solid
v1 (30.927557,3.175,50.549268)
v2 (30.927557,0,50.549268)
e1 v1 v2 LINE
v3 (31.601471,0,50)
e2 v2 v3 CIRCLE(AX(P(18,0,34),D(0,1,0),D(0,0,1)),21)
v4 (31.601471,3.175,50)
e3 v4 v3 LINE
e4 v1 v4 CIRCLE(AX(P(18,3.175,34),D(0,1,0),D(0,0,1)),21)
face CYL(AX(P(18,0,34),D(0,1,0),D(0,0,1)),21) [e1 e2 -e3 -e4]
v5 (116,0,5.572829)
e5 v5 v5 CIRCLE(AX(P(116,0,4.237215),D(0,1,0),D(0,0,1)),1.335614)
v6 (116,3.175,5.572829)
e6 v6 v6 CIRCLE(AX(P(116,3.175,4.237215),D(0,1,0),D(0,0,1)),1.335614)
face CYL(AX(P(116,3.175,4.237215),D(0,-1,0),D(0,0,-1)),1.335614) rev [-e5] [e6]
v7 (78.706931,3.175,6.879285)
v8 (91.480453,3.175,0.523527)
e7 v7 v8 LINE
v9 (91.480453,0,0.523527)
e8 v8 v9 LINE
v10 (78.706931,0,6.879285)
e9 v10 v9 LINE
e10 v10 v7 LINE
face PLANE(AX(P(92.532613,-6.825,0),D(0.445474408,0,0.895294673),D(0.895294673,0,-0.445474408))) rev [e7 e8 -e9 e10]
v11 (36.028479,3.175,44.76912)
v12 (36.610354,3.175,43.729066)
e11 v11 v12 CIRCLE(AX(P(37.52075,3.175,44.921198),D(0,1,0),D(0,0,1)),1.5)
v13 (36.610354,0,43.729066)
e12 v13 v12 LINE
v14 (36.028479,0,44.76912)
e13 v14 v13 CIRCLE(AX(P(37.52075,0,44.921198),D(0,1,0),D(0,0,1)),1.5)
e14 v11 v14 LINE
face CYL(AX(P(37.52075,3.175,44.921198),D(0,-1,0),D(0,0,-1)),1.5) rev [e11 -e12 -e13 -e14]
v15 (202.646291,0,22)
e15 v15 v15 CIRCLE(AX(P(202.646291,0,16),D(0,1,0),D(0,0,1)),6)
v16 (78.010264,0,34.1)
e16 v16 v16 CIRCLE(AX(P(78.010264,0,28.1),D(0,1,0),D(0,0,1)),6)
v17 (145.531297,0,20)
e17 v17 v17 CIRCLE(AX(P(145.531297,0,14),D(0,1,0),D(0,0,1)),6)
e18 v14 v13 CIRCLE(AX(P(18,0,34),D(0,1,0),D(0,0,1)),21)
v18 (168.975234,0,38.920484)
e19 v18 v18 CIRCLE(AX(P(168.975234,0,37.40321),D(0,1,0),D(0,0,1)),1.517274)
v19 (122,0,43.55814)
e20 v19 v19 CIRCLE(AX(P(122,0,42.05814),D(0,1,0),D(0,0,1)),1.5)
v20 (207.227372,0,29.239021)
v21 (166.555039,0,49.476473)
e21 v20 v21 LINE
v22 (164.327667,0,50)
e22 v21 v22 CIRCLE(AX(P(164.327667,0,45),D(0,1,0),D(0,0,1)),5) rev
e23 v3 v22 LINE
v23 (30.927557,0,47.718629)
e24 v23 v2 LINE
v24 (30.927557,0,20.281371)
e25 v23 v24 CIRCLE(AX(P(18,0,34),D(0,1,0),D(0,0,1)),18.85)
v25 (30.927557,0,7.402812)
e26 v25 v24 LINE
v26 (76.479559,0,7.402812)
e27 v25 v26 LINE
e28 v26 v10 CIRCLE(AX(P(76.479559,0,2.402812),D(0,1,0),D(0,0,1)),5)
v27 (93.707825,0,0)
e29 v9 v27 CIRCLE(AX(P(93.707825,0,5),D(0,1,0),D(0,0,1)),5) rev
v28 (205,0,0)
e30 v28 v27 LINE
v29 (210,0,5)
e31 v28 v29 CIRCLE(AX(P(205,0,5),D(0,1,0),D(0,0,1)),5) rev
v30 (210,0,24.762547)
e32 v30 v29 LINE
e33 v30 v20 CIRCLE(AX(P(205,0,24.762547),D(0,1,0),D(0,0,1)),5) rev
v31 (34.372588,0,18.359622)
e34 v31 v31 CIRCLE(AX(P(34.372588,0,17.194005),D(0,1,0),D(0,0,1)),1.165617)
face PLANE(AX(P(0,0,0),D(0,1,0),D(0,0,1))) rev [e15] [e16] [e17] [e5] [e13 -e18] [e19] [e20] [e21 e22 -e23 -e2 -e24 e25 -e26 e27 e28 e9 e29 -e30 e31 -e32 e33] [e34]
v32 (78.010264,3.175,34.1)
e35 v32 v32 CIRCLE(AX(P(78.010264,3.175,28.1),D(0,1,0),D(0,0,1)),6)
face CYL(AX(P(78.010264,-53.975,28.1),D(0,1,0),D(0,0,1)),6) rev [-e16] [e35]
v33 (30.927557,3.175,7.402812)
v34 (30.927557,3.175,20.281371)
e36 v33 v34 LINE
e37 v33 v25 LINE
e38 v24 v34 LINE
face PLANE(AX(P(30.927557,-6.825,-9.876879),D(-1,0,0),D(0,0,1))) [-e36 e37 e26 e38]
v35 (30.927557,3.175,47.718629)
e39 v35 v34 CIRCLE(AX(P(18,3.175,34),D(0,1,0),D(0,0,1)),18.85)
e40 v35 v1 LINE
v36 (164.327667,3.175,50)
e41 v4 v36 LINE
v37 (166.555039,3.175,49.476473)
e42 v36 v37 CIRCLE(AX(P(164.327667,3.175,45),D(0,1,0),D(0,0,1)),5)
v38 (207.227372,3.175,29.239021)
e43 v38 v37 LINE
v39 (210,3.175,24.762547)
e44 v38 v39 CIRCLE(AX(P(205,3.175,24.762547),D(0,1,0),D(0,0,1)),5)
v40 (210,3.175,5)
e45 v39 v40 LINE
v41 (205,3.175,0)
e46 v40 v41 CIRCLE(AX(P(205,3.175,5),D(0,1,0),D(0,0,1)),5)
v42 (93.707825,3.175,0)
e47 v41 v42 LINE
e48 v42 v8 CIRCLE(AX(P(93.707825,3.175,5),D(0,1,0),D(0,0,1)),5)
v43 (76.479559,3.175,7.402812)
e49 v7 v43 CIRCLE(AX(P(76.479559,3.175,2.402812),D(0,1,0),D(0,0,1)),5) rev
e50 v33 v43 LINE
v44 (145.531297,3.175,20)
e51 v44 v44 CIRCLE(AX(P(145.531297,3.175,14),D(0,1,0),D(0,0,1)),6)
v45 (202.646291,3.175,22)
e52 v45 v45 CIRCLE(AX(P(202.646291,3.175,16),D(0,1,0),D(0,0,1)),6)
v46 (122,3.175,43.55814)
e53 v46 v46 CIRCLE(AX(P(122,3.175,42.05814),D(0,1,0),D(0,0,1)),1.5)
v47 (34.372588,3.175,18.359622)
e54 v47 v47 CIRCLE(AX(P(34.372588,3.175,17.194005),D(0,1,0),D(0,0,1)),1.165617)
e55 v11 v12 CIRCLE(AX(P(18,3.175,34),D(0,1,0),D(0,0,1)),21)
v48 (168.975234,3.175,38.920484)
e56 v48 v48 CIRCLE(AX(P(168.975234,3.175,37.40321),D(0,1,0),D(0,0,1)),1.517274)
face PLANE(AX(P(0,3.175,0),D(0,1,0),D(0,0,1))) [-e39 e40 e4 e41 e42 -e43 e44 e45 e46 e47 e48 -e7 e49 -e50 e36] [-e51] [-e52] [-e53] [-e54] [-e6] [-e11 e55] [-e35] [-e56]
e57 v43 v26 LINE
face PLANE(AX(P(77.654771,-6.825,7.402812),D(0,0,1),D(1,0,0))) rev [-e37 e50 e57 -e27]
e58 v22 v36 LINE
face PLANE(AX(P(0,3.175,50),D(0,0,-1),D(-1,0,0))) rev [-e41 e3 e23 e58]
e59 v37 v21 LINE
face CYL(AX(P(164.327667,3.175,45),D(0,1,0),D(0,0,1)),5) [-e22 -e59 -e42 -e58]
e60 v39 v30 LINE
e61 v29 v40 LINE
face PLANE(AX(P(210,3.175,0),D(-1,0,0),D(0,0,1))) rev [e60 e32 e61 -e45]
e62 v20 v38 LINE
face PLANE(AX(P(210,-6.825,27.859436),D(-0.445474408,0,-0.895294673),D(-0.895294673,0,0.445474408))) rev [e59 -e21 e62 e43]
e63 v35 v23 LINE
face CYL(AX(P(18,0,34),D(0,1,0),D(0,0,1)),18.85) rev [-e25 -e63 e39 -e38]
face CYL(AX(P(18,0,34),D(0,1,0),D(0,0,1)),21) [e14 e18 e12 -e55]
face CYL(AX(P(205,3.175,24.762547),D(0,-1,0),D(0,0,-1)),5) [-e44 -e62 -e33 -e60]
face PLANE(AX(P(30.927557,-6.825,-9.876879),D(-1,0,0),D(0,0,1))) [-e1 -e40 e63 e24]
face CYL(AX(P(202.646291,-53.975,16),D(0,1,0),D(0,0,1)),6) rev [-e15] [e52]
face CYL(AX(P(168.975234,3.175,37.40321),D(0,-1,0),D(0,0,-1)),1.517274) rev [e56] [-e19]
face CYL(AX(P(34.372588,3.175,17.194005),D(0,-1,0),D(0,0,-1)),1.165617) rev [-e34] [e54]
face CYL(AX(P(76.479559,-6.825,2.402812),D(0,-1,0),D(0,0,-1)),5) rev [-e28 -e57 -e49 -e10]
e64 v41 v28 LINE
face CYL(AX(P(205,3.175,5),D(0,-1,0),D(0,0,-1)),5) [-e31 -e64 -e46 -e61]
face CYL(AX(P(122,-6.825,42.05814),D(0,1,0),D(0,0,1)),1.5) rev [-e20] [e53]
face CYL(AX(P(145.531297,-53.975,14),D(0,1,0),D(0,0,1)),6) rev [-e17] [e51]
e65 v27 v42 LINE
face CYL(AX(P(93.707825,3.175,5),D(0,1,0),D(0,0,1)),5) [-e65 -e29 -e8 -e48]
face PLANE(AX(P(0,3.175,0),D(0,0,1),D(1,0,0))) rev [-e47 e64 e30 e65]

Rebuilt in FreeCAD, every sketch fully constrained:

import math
import FreeCAD as App
import Part
import Sketcher
Q = App.Units.Quantity


def edges_at(feature, points):
    """Names of the edges that pass closest to the given points."""
    edges = feature.Shape.Edges
    near = lambda p: min(range(len(edges)), key=lambda i: edges[i].distToShape(Part.Vertex(*p))[0])
    return sorted({f"Edge{near(p) + 1}" for p in points})


def add_polygon(sketch, points):
    """Adds a closed chain of lines whose ends are joined by coincident constraints."""
    first, n = sketch.GeometryCount, len(points)
    for a, b in zip(points, points[1:] + points[:1]):
        sketch.addGeometry(Part.LineSegment(App.Vector(*a, 0), App.Vector(*b, 0)), False)
    for i in range(n):
        sketch.addConstraint(Sketcher.Constraint("Coincident", first + i, 2, first + (i + 1) % n, 1))

doc = App.newDocument("Part")
body = doc.addObject("PartDesign::Body", "Body")

# Sketch on XZ plane
sketch1 = body.newObject("Sketcher::SketchObject", "Sketch")
sketch1.AttachmentSupport = (doc.getObject("XZ_Plane"), [""])
sketch1.MapMode = "FlatFace"
add_polygon(sketch1, [(0, 0), (0, 50), (210, 50), (210, 0)])  # lines 0-3
sketch1.addGeometry(Part.Circle(App.Vector(37.5, 44.9, 0), App.Vector(0, 0, 1), 1.5), False)  # 4
sketch1.addGeometry(Part.Circle(App.Vector(169, 37.4, 0), App.Vector(0, 0, 1), 1.5), False)  # 5
sketch1.addGeometry(Part.Circle(App.Vector(3.5, 16.8, 0), App.Vector(0, 0, 1), 1.2), False)  # 6
sketch1.addGeometry(Part.Circle(App.Vector(34.4, 17.2, 0), App.Vector(0, 0, 1), 1.2), False)  # 7
sketch1.addGeometry(Part.Circle(App.Vector(12.3, 3.3, 0), App.Vector(0, 0, 1), 1.6), False)  # 8
sketch1.addGeometry(Part.Circle(App.Vector(116, 4.2, 0), App.Vector(0, 0, 1), 1.3), False)  # 9
sketch1.addConstraint([
    Sketcher.Constraint("Vertical", 0),
    Sketcher.Constraint("Horizontal", 1),
    Sketcher.Constraint("Vertical", 2),
    Sketcher.Constraint("Horizontal", 3),
    Sketcher.Constraint("Coincident", 3, 2, -1, 1),
    Sketcher.Constraint("Diameter", 4, Q("3 mm")),
    Sketcher.Constraint("DistanceX", 1, 1, 1, 2, Q("210 mm")),
    Sketcher.Constraint("DistanceY", 0, 1, 0, 2, Q("50 mm")),
    Sketcher.Constraint("DistanceX", -1, 1, 9, 3, Q("116 mm")),
    Sketcher.Constraint("Diameter", 6, Q("2.42333 mm")),
    Sketcher.Constraint("Diameter", 8, Q("3.248768 mm")),
    Sketcher.Constraint("Diameter", 9, Q("2.671228 mm")),
    Sketcher.Constraint("Diameter", 5, Q("3.034548 mm")),
    Sketcher.Constraint("Diameter", 7, Q("2.331234 mm")),
    Sketcher.Constraint("DistanceY", -1, 1, 4, 3, Q("44.921198 mm")),
    Sketcher.Constraint("DistanceX", -1, 1, 4, 3, Q("37.52075 mm")),
    Sketcher.Constraint("DistanceY", -1, 1, 5, 3, Q("37.40321 mm")),
    Sketcher.Constraint("DistanceY", -1, 1, 6, 3, Q("16.787661 mm")),
    Sketcher.Constraint("DistanceX", -1, 1, 8, 3, Q("12.25764 mm")),
    Sketcher.Constraint("DistanceX", 6, 3, 7, 3, Q("30.883061 mm")),
    Sketcher.Constraint("DistanceY", 8, 3, 6, 3, Q("13.512849 mm")),
    Sketcher.Constraint("DistanceY", 9, 3, 7, 3, Q("12.95679 mm")),
    Sketcher.Constraint("DistanceX", -1, 1, 5, 3, Q("168.975234 mm")),
    Sketcher.Constraint("DistanceX", -1, 1, 6, 3, Q("3.489526 mm")),
    Sketcher.Constraint("DistanceY", -1, 1, 7, 3, Q("17.194005 mm")),
])
pad1 = body.newObject("PartDesign::Pad", "Pad")
pad1.Profile = sketch1
pad1.Length = 3.175
pad1.Reversed = True

# Sketch on XZ plane
sketch2 = body.newObject("Sketcher::SketchObject", "Sketch001")
sketch2.AttachmentSupport = (doc.getObject("XZ_Plane"), [""])
sketch2.MapMode = "FlatFace"
sketch2.AttachmentOffset = App.Placement(App.Vector(0, 0, -3.175), App.Rotation())
sketch2.addGeometry([
    Part.Circle(App.Vector(10, 26, 0), App.Vector(0, 0, 1), 2),
    Part.Circle(App.Vector(10, 42, 0), App.Vector(0, 0, 1), 2),
    Part.Circle(App.Vector(26, 26, 0), App.Vector(0, 0, 1), 2),
    Part.Circle(App.Vector(26, 42, 0), App.Vector(0, 0, 1), 2),
], False)
sketch2.addConstraint([
    Sketcher.Constraint("Equal", 0, 1),
    Sketcher.Constraint("Equal", 1, 2),
    Sketcher.Constraint("Equal", 2, 3),
    Sketcher.Constraint("Horizontal", 0, 3, 2, 3),
    Sketcher.Constraint("Horizontal", 1, 3, 3, 3),
    Sketcher.Constraint("Vertical", 0, 3, 1, 3),
    Sketcher.Constraint("Vertical", 2, 3, 3, 3),
    Sketcher.Constraint("Diameter", 0, Q("4 mm")),
    Sketcher.Constraint("DistanceX", -1, 1, 0, 3, Q("10 mm")),
    Sketcher.Constraint("DistanceY", -1, 1, 0, 3, Q("26 mm")),
    Sketcher.Constraint("DistanceY", -1, 1, 1, 3, Q("42 mm")),
    Sketcher.Constraint("DistanceX", -1, 1, 2, 3, Q("26 mm")),
])
pocket1 = body.newObject("PartDesign::Pocket", "Pocket")
pocket1.Profile = sketch2
pocket1.Length = 10
pocket1.Reversed = True

# Sketch on XZ plane
sketch3 = body.newObject("Sketcher::SketchObject", "Sketch002")
sketch3.AttachmentSupport = (doc.getObject("XZ_Plane"), [""])
sketch3.MapMode = "FlatFace"
sketch3.AttachmentOffset = App.Placement(App.Vector(0, 0, -3.175), App.Rotation())
sketch3.addGeometry([
    Part.Circle(App.Vector(78, 28.1, 0), App.Vector(0, 0, 1), 6),
    Part.Circle(App.Vector(145.5, 14, 0), App.Vector(0, 0, 1), 6),
    Part.Circle(App.Vector(18, 34, 0), App.Vector(0, 0, 1), 0.6),
    Part.Circle(App.Vector(202.6, 16, 0), App.Vector(0, 0, 1), 6),
], False)
sketch3.addConstraint([
    Sketcher.Constraint("Equal", 0, 1),
    Sketcher.Constraint("Equal", 1, 3),
    Sketcher.Constraint("Diameter", 0, Q("12 mm")),
    Sketcher.Constraint("DistanceY", -1, 1, 1, 3, Q("14 mm")),
    Sketcher.Constraint("DistanceX", -1, 1, 2, 3, Q("18 mm")),
    Sketcher.Constraint("DistanceY", -1, 1, 2, 3, Q("34 mm")),
    Sketcher.Constraint("DistanceY", -1, 1, 3, 3, Q("16 mm")),
    Sketcher.Constraint("DistanceY", -1, 1, 0, 3, Q("28.1 mm")),
    Sketcher.Constraint("Diameter", 2, Q("1.173991 mm")),
    Sketcher.Constraint("DistanceX", -1, 1, 3, 3, Q("202.646291 mm")),
    Sketcher.Constraint("DistanceX", -1, 1, 0, 3, Q("78.010264 mm")),
    Sketcher.Constraint("DistanceX", -1, 1, 1, 3, Q("145.531297 mm")),
])
pocket2 = body.newObject("PartDesign::Pocket", "Pocket001")
pocket2.Profile = sketch3
pocket2.Length = 57.15
pocket2.Reversed = True

# Sketch on XZ plane
sketch4 = body.newObject("Sketcher::SketchObject", "Sketch003")
sketch4.AttachmentSupport = (doc.getObject("XZ_Plane"), [""])
sketch4.MapMode = "FlatFace"
sketch4.AttachmentOffset = App.Placement(App.Vector(0, 0, -3.175), App.Rotation())
add_polygon(sketch4, [(210, 28), (166, 50), (210, 50)])  # lines 0-2
add_polygon(sketch4, [(78, 7), (93, 0), (0, 0), (0, 7)])  # lines 3-6
sketch4.addConstraint([
    Sketcher.Constraint("Horizontal", 1),
    Sketcher.Constraint("Vertical", 2),
    Sketcher.Constraint("Horizontal", 4),
    Sketcher.Constraint("Vertical", 5),
    Sketcher.Constraint("Horizontal", 6),
    Sketcher.Constraint("Coincident", 4, 2, -1, 1),
    Sketcher.Constraint("Parallel", 0, 3),
    Sketcher.Constraint("DistanceY", -1, 1, 0, 2, Q("50 mm")),
    Sketcher.Constraint("DistanceX", -1, 1, 1, 2, Q("210 mm")),
    Sketcher.Constraint("DistanceX", 6, 1, 6, 2, Q("77.654771 mm")),
    Sketcher.Constraint("Distance", 0, Q("49.701091 mm")),
    Sketcher.Constraint("DistanceX", 1, 1, 1, 2, Q("44.497122 mm")),
    Sketcher.Constraint("DistanceX", 4, 2, 4, 1, Q("92.532613 mm")),
])
pocket3 = body.newObject("PartDesign::Pocket", "Pocket002")
pocket3.Profile = sketch4
pocket3.Length = 10
pocket3.Reversed = True
doc.recompute()

fillet = body.newObject("PartDesign::Fillet", "Fillet")
fillet.Base = (pocket3, edges_at(pocket3, [
    (210, 1.587, 0),
    (0, 1.587, 50),
    (92.533, 1.587, 0),
    (210, 1.587, 27.859),
    (165.503, 1.587, 50),
    (77.655, 1.587, 7.403),
    (0, 1.587, 7.403),
]))
fillet.Radius = 5

# Sketch on XZ plane
sketch5 = body.newObject("Sketcher::SketchObject", "Sketch004")
sketch5.AttachmentSupport = (doc.getObject("XZ_Plane"), [""])
sketch5.MapMode = "FlatFace"
sketch5.AttachmentOffset = App.Placement(App.Vector(0, 0, -3.175), App.Rotation())
sketch5.addGeometry([
    Part.Circle(App.Vector(18, 34, 0), App.Vector(0, 0, 1), 18.5),  # 0
    Part.Circle(App.Vector(10, 42, 0), App.Vector(0, 0, 1), 2),  # 1
    Part.Circle(App.Vector(26, 42, 0), App.Vector(0, 0, 1), 2),  # 2
    Part.Circle(App.Vector(10, 26, 0), App.Vector(0, 0, 1), 2),  # 3
    Part.Circle(App.Vector(26, 26, 0), App.Vector(0, 0, 1), 2),  # 4
], False)
sketch5.addConstraint([
    Sketcher.Constraint("Equal", 1, 2),
    Sketcher.Constraint("Equal", 2, 3),
    Sketcher.Constraint("Equal", 3, 4),
    Sketcher.Constraint("Horizontal", 1, 3, 2, 3),
    Sketcher.Constraint("Horizontal", 3, 3, 4, 3),
    Sketcher.Constraint("Vertical", 1, 3, 3, 3),
    Sketcher.Constraint("Vertical", 2, 3, 4, 3),
    Sketcher.Constraint("Diameter", 0, Q("37 mm")),
    Sketcher.Constraint("Diameter", 1, Q("4 mm")),
    Sketcher.Constraint("DistanceX", -1, 1, 0, 3, Q("18 mm")),
    Sketcher.Constraint("DistanceY", -1, 1, 0, 3, Q("34 mm")),
    Sketcher.Constraint("DistanceX", -1, 1, 1, 3, Q("10 mm")),
    Sketcher.Constraint("DistanceY", -1, 1, 1, 3, Q("42 mm")),
    Sketcher.Constraint("DistanceX", -1, 1, 2, 3, Q("26 mm")),
    Sketcher.Constraint("DistanceY", -1, 1, 3, 3, Q("26 mm")),
])
pad2 = body.newObject("PartDesign::Pad", "Pad001")
pad2.Profile = sketch5
pad2.Length = 3.175

# Sketch on XZ plane
sketch6 = body.newObject("Sketcher::SketchObject", "Sketch005")
sketch6.AttachmentSupport = (doc.getObject("XZ_Plane"), [""])
sketch6.MapMode = "FlatFace"
sketch6.AttachmentOffset = App.Placement(App.Vector(0, 0, -3.175), App.Rotation())
sketch6.addGeometry(Part.Circle(App.Vector(18, 34, 0), App.Vector(0, 0, 1), 21), False)
sketch6.addConstraint([
    Sketcher.Constraint("Diameter", 0, Q("42 mm")),
    Sketcher.Constraint("DistanceX", -1, 1, 0, 3, Q("18 mm")),
    Sketcher.Constraint("DistanceY", -1, 1, 0, 3, Q("34 mm")),
])
pad3 = body.newObject("PartDesign::Pad", "Pad002")
pad3.Profile = sketch6
pad3.Length = 3.175

# Sketch on XZ plane
sketch7 = body.newObject("Sketcher::SketchObject", "Sketch006")
sketch7.AttachmentSupport = (doc.getObject("XZ_Plane"), [""])
sketch7.MapMode = "FlatFace"
sketch7.AttachmentOffset = App.Placement(App.Vector(0, 0, -3.175), App.Rotation())
sketch7.addGeometry(Part.Circle(App.Vector(18, 34, 0), App.Vector(0, 0, 1), 19), False)
sketch7.addConstraint([
    Sketcher.Constraint("Diameter", 0, Q("37.7 mm")),
    Sketcher.Constraint("DistanceX", -1, 1, 0, 3, Q("18 mm")),
    Sketcher.Constraint("DistanceY", -1, 1, 0, 3, Q("34 mm")),
])
pocket4 = body.newObject("PartDesign::Pocket", "Pocket003")
pocket4.Profile = sketch7
pocket4.Length = 3.175
pocket4.Reversed = True

# Sketch on XZ plane
sketch8 = body.newObject("Sketcher::SketchObject", "Sketch007")
sketch8.AttachmentSupport = (doc.getObject("XZ_Plane"), [""])
sketch8.MapMode = "FlatFace"
sketch8.AttachmentOffset = App.Placement(App.Vector(0, 0, -3.175), App.Rotation())
sketch8.addGeometry([
    Part.LineSegment(App.Vector(-35.83, 34.2728, 0), App.Vector(-2.9982, 34.2728, 0)),  # 0
    Part.ArcOfCircle(Part.Circle(App.Vector(18, 34, 0), App.Vector(0, 0, 1), 21), math.radians(179), math.radians(211)),  # 1
    Part.LineSegment(App.Vector(0, 23.1833, 0), App.Vector(0, 12.2485, 0)),  # 2
    Part.LineSegment(App.Vector(0, 12.2485, 0), App.Vector(0.0024, 12.2485, 0)),  # 3
    Part.ArcOfCircle(Part.Circle(App.Vector(5, 12.4028, 0), App.Vector(0, 0, 1), 5), math.radians(-178), math.radians(-90)),  # 4
    Part.LineSegment(App.Vector(5, 7.4028, 0), App.Vector(18, 7.4028, 0)),  # 5
    Part.LineSegment(App.Vector(18, 7.4028, 0), App.Vector(18, -0.7272, 0)),  # 6
    Part.LineSegment(App.Vector(18, -0.7272, 0), App.Vector(-35.83, -0.7272, 0)),  # 7
    Part.LineSegment(App.Vector(-35.83, -0.7272, 0), App.Vector(-35.83, 34.2728, 0)),  # 8
], False)
sketch8.addConstraint([
    Sketcher.Constraint("Coincident", 0, 2, 1, 1),
    Sketcher.Constraint("Coincident", 1, 2, 2, 1),
    Sketcher.Constraint("Coincident", 2, 2, 3, 1),
    Sketcher.Constraint("Coincident", 3, 2, 4, 1),
    Sketcher.Constraint("Tangent", 4, 2, 5, 1),
    Sketcher.Constraint("Coincident", 5, 2, 6, 1),
    Sketcher.Constraint("Coincident", 6, 2, 7, 1),
    Sketcher.Constraint("Coincident", 7, 2, 8, 1),
    Sketcher.Constraint("Coincident", 8, 2, 0, 1),
    Sketcher.Constraint("Horizontal", 0),
    Sketcher.Constraint("Vertical", 2),
    Sketcher.Constraint("Horizontal", 3),
    Sketcher.Constraint("Horizontal", 5),
    Sketcher.Constraint("Vertical", 6),
    Sketcher.Constraint("Horizontal", 7),
    Sketcher.Constraint("Vertical", 8),
    Sketcher.Constraint("PointOnObject", 1, 2, -2),
    Sketcher.Constraint("Vertical", 1, 3, 5, 2),
    Sketcher.Constraint("Radius", 1, Q("21 mm")),
    Sketcher.Constraint("Radius", 4, Q("5 mm")),
    Sketcher.Constraint("DistanceX", 5, 1, 5, 2, Q("13 mm")),
    Sketcher.Constraint("DistanceY", 8, 1, 8, 2, Q("35 mm")),
    Sketcher.Constraint("DistanceX", -1, 1, 1, 3, Q("18 mm")),
    Sketcher.Constraint("DistanceY", -1, 1, 1, 3, Q("34 mm")),
    Sketcher.Constraint("DistanceX", 7, 2, 7, 1, Q("53.83 mm")),
    Sketcher.Constraint("DistanceY", 6, 2, 6, 1, Q("8.13 mm")),
    Sketcher.Constraint("DistanceX", 3, 1, 3, 2, Q("0.002381 mm")),
    Sketcher.Constraint("DistanceX", 0, 1, 0, 2, Q("32.831772 mm")),
])
pad4 = body.newObject("PartDesign::Pad", "Pad003")
pad4.Profile = sketch8
pad4.Length = 3.175
doc.recompute()

fillet2 = body.newObject("PartDesign::Fillet", "Fillet001")
fillet2.Base = (pad4, edges_at(pad4, [(-35.83, 1.587, 34.273), (-35.83, 1.587, -0.727), (18, 1.587, -0.727)]))
fillet2.Radius = 5

# Sketch on XZ plane
sketch9 = body.newObject("Sketcher::SketchObject", "Sketch008")
sketch9.AttachmentSupport = (doc.getObject("XZ_Plane"), [""])
sketch9.MapMode = "FlatFace"
sketch9.AttachmentOffset = App.Placement(App.Vector(0, 0, -3.175), App.Rotation())
sketch9.addGeometry(Part.Circle(App.Vector(122, 42.1, 0), App.Vector(0, 0, 1), 1.5), False)
sketch9.addConstraint([
    Sketcher.Constraint("Diameter", 0, Q("3 mm")),
    Sketcher.Constraint("DistanceX", -1, 1, 0, 3, Q("122 mm")),
    Sketcher.Constraint("DistanceY", -1, 1, 0, 3, Q("42.05814 mm")),
])
pocket5 = body.newObject("PartDesign::Pocket", "Pocket004")
pocket5.Profile = sketch9
pocket5.Length = 10
pocket5.Reversed = True

# Sketch on XZ plane
sketch10 = body.newObject("Sketcher::SketchObject", "Sketch009")
sketch10.AttachmentSupport = (doc.getObject("XZ_Plane"), [""])
sketch10.MapMode = "FlatFace"
sketch10.AttachmentOffset = App.Placement(App.Vector(0, 0, -3.175), App.Rotation())
sketch10.addGeometry(Part.Circle(App.Vector(12, 3.3, 0), App.Vector(0, 0, 1), 1.5), False)
sketch10.addConstraint([
    Sketcher.Constraint("Diameter", 0, Q("3 mm")),
    Sketcher.Constraint("DistanceX", -1, 1, 0, 3, Q("12 mm")),
    Sketcher.Constraint("DistanceY", -1, 1, 0, 3, Q("3.272812 mm")),
])
pocket6 = body.newObject("PartDesign::Pocket", "Pocket005")
pocket6.Profile = sketch10
pocket6.Length = 10
pocket6.Reversed = True

# Sketch on XZ plane
sketch11 = body.newObject("Sketcher::SketchObject", "Sketch010")
sketch11.AttachmentSupport = (doc.getObject("XZ_Plane"), [""])
sketch11.MapMode = "FlatFace"
sketch11.AttachmentOffset = App.Placement(App.Vector(0, 0, -3.175), App.Rotation())
add_polygon(sketch11, [(-52, -10), (-52, 57), (31, 57), (31, -10)])  # lines 0-3
sketch11.addConstraint([
    Sketcher.Constraint("Vertical", 0),
    Sketcher.Constraint("Horizontal", 1),
    Sketcher.Constraint("Vertical", 2),
    Sketcher.Constraint("Horizontal", 3),
    Sketcher.Constraint("DistanceX", 1, 1, 1, 2, Q("82.811101 mm")),
    Sketcher.Constraint("DistanceY", 0, 1, 0, 2, Q("66.522656 mm")),
    Sketcher.Constraint("DistanceY", 2, 2, -1, 1, Q("9.876879 mm")),
    Sketcher.Constraint("DistanceX", 0, 2, -1, 1, Q("51.883544 mm")),
])
pocket7 = body.newObject("PartDesign::Pocket", "Pocket006")
pocket7.Profile = sketch11
pocket7.Length = 10
pocket7.Reversed = True

doc.recompute()
